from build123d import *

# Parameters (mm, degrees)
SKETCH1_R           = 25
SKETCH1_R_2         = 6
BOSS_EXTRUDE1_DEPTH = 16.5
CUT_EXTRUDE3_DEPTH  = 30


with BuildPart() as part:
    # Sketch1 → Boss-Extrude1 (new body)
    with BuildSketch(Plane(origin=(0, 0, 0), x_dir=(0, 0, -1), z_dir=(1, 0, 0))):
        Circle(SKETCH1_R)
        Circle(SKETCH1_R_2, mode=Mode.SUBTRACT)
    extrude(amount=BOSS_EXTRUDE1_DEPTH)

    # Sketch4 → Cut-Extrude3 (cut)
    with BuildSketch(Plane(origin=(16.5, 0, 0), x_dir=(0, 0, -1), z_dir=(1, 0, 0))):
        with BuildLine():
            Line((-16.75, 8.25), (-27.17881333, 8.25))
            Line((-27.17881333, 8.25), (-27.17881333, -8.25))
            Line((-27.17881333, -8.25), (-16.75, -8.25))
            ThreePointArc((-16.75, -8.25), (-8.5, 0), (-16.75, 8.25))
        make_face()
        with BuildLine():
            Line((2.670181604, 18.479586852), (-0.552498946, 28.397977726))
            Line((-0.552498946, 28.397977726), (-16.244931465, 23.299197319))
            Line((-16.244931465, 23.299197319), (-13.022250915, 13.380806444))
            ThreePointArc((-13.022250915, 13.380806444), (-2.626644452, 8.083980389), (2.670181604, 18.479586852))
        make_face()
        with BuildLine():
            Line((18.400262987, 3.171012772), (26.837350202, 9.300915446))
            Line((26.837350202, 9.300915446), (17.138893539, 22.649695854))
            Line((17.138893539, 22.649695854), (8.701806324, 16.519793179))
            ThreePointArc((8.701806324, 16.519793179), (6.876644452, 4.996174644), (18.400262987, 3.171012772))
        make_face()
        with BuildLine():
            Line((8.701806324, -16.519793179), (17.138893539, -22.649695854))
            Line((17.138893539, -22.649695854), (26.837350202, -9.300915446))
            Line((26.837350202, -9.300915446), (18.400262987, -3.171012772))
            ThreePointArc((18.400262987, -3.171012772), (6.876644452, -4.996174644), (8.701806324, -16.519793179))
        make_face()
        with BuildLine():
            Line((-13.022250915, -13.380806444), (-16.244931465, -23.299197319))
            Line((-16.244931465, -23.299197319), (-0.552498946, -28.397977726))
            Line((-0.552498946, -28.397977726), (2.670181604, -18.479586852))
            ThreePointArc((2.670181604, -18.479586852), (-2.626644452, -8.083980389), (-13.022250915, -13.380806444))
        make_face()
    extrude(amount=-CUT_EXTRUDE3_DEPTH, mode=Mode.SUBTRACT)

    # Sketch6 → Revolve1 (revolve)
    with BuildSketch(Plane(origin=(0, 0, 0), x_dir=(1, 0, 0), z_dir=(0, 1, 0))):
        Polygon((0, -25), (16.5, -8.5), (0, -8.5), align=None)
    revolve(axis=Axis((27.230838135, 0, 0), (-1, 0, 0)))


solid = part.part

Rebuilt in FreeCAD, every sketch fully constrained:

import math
import FreeCAD as App
import Part
import Sketcher

V = App.Vector
Q = App.Units.Quantity

doc = App.newDocument("Part")
body = doc.addObject("PartDesign::Body", "Body")

# Sketch on YZ plane
sketch1 = doc.addObject("Sketcher::SketchObject", "Sketch")
body.addObject(sketch1)
sketch1.AttachmentSupport = (doc.YZ_Plane, [""])
sketch1.MapMode = "FlatFace"
sketch1.addGeometry(Part.Circle(V(0, 0, 0), V(0, 0, 1), 25), False)
sketch1.addGeometry(Part.Circle(V(0, 0, 0), V(0, 0, 1), 6), False)
sketch1.addConstraint(Sketcher.Constraint("Coincident", 0, 3, -1, 1))
sketch1.addConstraint(Sketcher.Constraint("Coincident", 1, 3, -1, 1))
sketch1.addConstraint(Sketcher.Constraint("Diameter", 0, 50.0))
sketch1.addConstraint(Sketcher.Constraint("Diameter", 1, 12.0))
pad1 = doc.addObject("PartDesign::Pad", "Pad")
body.addObject(pad1)
pad1.Profile = sketch1
pad1.Length = 16.5

# Sketch on YZ plane
sketch2 = doc.addObject("Sketcher::SketchObject", "Sketch001")
body.addObject(sketch2)
sketch2.AttachmentSupport = (doc.YZ_Plane, [""])
sketch2.MapMode = "FlatFace"
sketch2.AttachmentOffset = App.Placement(V(0, 0, 16.5), App.Rotation())
sketch2.addGeometry(Part.LineSegment(V(8, 17, 0), V(8, 27, 0)), False)
sketch2.addGeometry(Part.LineSegment(V(8, 27, 0), V(-8, 27, 0)), False)
sketch2.addGeometry(Part.LineSegment(V(-8, 27, 0), V(-8, 17, 0)), False)
sketch2.addGeometry(Part.ArcOfCircle(Part.Circle(V(0, 17, 0), V(0, 0, 1), 8), math.radians(180), math.radians(360)), False)
sketch2.addGeometry(Part.LineSegment(V(18, -3, 0), V(28, 1, 0)), False)
sketch2.addGeometry(Part.LineSegment(V(28, 1, 0), V(23, 16, 0)), False)
sketch2.addGeometry(Part.LineSegment(V(23, 16, 0), V(13, 13, 0)), False)
sketch2.addGeometry(Part.ArcOfCircle(Part.Circle(V(16, 5, 0), V(0, 0, 1), 8), math.radians(108), math.radians(288)), False)
sketch2.addGeometry(Part.LineSegment(V(3, -18, 0), V(9, -27, 0)), False)
sketch2.addGeometry(Part.LineSegment(V(9, -27, 0), V(23, -17, 0)), False)
sketch2.addGeometry(Part.LineSegment(V(23, -17, 0), V(17, -9, 0)), False)
sketch2.addGeometry(Part.ArcOfCircle(Part.Circle(V(10, -14, 0), V(0, 0, 1), 8), math.radians(36), math.radians(216)), False)
sketch2.addGeometry(Part.LineSegment(V(-17, -9, 0), V(-23, -17, 0)), False)
sketch2.addGeometry(Part.LineSegment(V(-23, -17, 0), V(-9, -27, 0)), False)
sketch2.addGeometry(Part.LineSegment(V(-9, -27, 0), V(-3, -18, 0)), False)
sketch2.addGeometry(Part.ArcOfCircle(Part.Circle(V(-10, -14, 0), V(0, 0, 1), 8), math.radians(-36), math.radians(144)), False)
sketch2.addGeometry(Part.LineSegment(V(-13, 13, 0), V(-23, 16, 0)), False)
sketch2.addGeometry(Part.LineSegment(V(-23, 16, 0), V(-28, 1, 0)), False)
sketch2.addGeometry(Part.LineSegment(V(-28, 1, 0), V(-18, -3, 0)), False)
sketch2.addGeometry(Part.ArcOfCircle(Part.Circle(V(-16, 5, 0), V(0, 0, 1), 8), math.radians(-108), math.radians(72)), False)
sketch2.addConstraint(Sketcher.Constraint("Coincident", 0, 2, 1, 1))
sketch2.addConstraint(Sketcher.Constraint("Coincident", 1, 2, 2, 1))
sketch2.addConstraint(Sketcher.Constraint("Tangent", 2, 2, 3, 1))
sketch2.addConstraint(Sketcher.Constraint("Tangent", 3, 2, 0, 1))
sketch2.addConstraint(Sketcher.Constraint("Coincident", 4, 2, 5, 1))
sketch2.addConstraint(Sketcher.Constraint("Coincident", 5, 2, 6, 1))
sketch2.addConstraint(Sketcher.Constraint("Tangent", 6, 2, 7, 1))
sketch2.addConstraint(Sketcher.Constraint("Tangent", 7, 2, 4, 1))
sketch2.addConstraint(Sketcher.Constraint("Coincident", 8, 2, 9, 1))
sketch2.addConstraint(Sketcher.Constraint("Coincident", 9, 2, 10, 1))
sketch2.addConstraint(Sketcher.Constraint("Tangent", 10, 2, 11, 1))
sketch2.addConstraint(Sketcher.Constraint("Tangent", 11, 2, 8, 1))
sketch2.addConstraint(Sketcher.Constraint("Coincident", 12, 2, 13, 1))
sketch2.addConstraint(Sketcher.Constraint("Coincident", 13, 2, 14, 1))
sketch2.addConstraint(Sketcher.Constraint("Tangent", 14, 2, 15, 1))
sketch2.addConstraint(Sketcher.Constraint("Tangent", 15, 2, 12, 1))
sketch2.addConstraint(Sketcher.Constraint("Coincident", 16, 2, 17, 1))
sketch2.addConstraint(Sketcher.Constraint("Coincident", 17, 2, 18, 1))
sketch2.addConstraint(Sketcher.Constraint("Tangent", 18, 2, 19, 1))
sketch2.addConstraint(Sketcher.Constraint("Tangent", 19, 2, 16, 1))
sketch2.addConstraint(Sketcher.Constraint("Vertical", 0))
sketch2.addConstraint(Sketcher.Constraint("Horizontal", 1))
sketch2.addConstraint(Sketcher.Constraint("Vertical", 2))
sketch2.addConstraint(Sketcher.Constraint("Equal", 3, 7))
sketch2.addConstraint(Sketcher.Constraint("Equal", 7, 11))
sketch2.addConstraint(Sketcher.Constraint("Equal", 11, 15))
sketch2.addConstraint(Sketcher.Constraint("Equal", 15, 19))
sketch2.addConstraint(Sketcher.Constraint("Symmetric", 11, 3, 15, 3, -2))
sketch2.addConstraint(Sketcher.Constraint("Symmetric", 7, 3, 19, 3, -2))
sketch2.addConstraint(Sketcher.Constraint("Symmetric", 9, 2, 12, 2, -2))
sketch2.addConstraint(Sketcher.Constraint("Symmetric", 8, 2, 13, 2, -2))
sketch2.addConstraint(Sketcher.Constraint("Symmetric", 5, 2, 16, 2, -2))
sketch2.addConstraint(Sketcher.Constraint("Symmetric", 4, 2, 17, 2, -2))
sketch2.addConstraint(Sketcher.Constraint("PointOnObject", 3, 3, -2))
sketch2.addConstraint(Sketcher.Constraint("Perpendicular", 4, 5))
sketch2.addConstraint(Sketcher.Constraint("Perpendicular", 5, 6))
sketch2.addConstraint(Sketcher.Constraint("Perpendicular", 8, 9))
sketch2.addConstraint(Sketcher.Constraint("Perpendicular", 9, 10))
sketch2.addConstraint(Sketcher.Constraint("Equal", 6, 8))
sketch2.addConstraint(Sketcher.Constraint("Angle", 4, Q("18 deg")))
sketch2.addConstraint(Sketcher.Constraint("Angle", 8, Q("-54 deg")))
sketch2.addConstraint(Sketcher.Constraint("Radius", 3, 8.25))
sketch2.addConstraint(Sketcher.Constraint("DistanceY", -1, 1, 3, 3, 16.75))
sketch2.addConstraint(Sketcher.Constraint("DistanceX", 7, 3, 5, 2, 7.369001))
sketch2.addConstraint(Sketcher.Constraint("DistanceY", -1, 1, 4, 2, 0.552499))
sketch2.addConstraint(Sketcher.Constraint("DistanceX", 15, 3, 7, 3, 25.7756))
sketch2.addConstraint(Sketcher.Constraint("DistanceX", 7, 3, 9, 2, 6.719499))
sketch2.addConstraint(Sketcher.Constraint("DistanceY", 0, 1, 0, 2, 10.428813))
sketch2.addConstraint(Sketcher.Constraint("DistanceY", 8, 2, -1, 1, 26.83735))
pocket1 = doc.addObject("PartDesign::Pocket", "Pocket")
body.addObject(pocket1)
pocket1.Profile = sketch2
pocket1.Length = 30

# Sketch on XZ plane
sketch3 = doc.addObject("Sketcher::SketchObject", "Sketch002")
body.addObject(sketch3)
sketch3.AttachmentSupport = (doc.XZ_Plane, [""])
sketch3.MapMode = "FlatFace"
sketch3.addGeometry(Part.LineSegment(V(0, 25, 0), V(16, 8, 0)), False)
sketch3.addGeometry(Part.LineSegment(V(16, 8, 0), V(0, 8, 0)), False)
sketch3.addGeometry(Part.LineSegment(V(0, 8, 0), V(0, 25, 0)), False)
sketch3.addConstraint(Sketcher.Constraint("Coincident", 0, 2, 1, 1))
sketch3.addConstraint(Sketcher.Constraint("Coincident", 1, 2, 2, 1))
sketch3.addConstraint(Sketcher.Constraint("Coincident", 2, 2, 0, 1))
sketch3.addConstraint(Sketcher.Constraint("Horizontal", 1))
sketch3.addConstraint(Sketcher.Constraint("Vertical", 2))
sketch3.addConstraint(Sketcher.Constraint("PointOnObject", 1, 2, -2))
sketch3.addConstraint(Sketcher.Constraint("Equal", 1, 2))
sketch3.addConstraint(Sketcher.Constraint("DistanceX", 1, 2, 1, 1, 16.5))
sketch3.addConstraint(Sketcher.Constraint("DistanceY", -1, 1, 2, 2, 25.0))
revolution = doc.addObject("PartDesign::Revolution", "Revolution")
body.addObject(revolution)
revolution.Profile = sketch3
revolution.ReferenceAxis = (sketch3, ["H_Axis"])
revolution.Angle = 360

doc.recompute()
